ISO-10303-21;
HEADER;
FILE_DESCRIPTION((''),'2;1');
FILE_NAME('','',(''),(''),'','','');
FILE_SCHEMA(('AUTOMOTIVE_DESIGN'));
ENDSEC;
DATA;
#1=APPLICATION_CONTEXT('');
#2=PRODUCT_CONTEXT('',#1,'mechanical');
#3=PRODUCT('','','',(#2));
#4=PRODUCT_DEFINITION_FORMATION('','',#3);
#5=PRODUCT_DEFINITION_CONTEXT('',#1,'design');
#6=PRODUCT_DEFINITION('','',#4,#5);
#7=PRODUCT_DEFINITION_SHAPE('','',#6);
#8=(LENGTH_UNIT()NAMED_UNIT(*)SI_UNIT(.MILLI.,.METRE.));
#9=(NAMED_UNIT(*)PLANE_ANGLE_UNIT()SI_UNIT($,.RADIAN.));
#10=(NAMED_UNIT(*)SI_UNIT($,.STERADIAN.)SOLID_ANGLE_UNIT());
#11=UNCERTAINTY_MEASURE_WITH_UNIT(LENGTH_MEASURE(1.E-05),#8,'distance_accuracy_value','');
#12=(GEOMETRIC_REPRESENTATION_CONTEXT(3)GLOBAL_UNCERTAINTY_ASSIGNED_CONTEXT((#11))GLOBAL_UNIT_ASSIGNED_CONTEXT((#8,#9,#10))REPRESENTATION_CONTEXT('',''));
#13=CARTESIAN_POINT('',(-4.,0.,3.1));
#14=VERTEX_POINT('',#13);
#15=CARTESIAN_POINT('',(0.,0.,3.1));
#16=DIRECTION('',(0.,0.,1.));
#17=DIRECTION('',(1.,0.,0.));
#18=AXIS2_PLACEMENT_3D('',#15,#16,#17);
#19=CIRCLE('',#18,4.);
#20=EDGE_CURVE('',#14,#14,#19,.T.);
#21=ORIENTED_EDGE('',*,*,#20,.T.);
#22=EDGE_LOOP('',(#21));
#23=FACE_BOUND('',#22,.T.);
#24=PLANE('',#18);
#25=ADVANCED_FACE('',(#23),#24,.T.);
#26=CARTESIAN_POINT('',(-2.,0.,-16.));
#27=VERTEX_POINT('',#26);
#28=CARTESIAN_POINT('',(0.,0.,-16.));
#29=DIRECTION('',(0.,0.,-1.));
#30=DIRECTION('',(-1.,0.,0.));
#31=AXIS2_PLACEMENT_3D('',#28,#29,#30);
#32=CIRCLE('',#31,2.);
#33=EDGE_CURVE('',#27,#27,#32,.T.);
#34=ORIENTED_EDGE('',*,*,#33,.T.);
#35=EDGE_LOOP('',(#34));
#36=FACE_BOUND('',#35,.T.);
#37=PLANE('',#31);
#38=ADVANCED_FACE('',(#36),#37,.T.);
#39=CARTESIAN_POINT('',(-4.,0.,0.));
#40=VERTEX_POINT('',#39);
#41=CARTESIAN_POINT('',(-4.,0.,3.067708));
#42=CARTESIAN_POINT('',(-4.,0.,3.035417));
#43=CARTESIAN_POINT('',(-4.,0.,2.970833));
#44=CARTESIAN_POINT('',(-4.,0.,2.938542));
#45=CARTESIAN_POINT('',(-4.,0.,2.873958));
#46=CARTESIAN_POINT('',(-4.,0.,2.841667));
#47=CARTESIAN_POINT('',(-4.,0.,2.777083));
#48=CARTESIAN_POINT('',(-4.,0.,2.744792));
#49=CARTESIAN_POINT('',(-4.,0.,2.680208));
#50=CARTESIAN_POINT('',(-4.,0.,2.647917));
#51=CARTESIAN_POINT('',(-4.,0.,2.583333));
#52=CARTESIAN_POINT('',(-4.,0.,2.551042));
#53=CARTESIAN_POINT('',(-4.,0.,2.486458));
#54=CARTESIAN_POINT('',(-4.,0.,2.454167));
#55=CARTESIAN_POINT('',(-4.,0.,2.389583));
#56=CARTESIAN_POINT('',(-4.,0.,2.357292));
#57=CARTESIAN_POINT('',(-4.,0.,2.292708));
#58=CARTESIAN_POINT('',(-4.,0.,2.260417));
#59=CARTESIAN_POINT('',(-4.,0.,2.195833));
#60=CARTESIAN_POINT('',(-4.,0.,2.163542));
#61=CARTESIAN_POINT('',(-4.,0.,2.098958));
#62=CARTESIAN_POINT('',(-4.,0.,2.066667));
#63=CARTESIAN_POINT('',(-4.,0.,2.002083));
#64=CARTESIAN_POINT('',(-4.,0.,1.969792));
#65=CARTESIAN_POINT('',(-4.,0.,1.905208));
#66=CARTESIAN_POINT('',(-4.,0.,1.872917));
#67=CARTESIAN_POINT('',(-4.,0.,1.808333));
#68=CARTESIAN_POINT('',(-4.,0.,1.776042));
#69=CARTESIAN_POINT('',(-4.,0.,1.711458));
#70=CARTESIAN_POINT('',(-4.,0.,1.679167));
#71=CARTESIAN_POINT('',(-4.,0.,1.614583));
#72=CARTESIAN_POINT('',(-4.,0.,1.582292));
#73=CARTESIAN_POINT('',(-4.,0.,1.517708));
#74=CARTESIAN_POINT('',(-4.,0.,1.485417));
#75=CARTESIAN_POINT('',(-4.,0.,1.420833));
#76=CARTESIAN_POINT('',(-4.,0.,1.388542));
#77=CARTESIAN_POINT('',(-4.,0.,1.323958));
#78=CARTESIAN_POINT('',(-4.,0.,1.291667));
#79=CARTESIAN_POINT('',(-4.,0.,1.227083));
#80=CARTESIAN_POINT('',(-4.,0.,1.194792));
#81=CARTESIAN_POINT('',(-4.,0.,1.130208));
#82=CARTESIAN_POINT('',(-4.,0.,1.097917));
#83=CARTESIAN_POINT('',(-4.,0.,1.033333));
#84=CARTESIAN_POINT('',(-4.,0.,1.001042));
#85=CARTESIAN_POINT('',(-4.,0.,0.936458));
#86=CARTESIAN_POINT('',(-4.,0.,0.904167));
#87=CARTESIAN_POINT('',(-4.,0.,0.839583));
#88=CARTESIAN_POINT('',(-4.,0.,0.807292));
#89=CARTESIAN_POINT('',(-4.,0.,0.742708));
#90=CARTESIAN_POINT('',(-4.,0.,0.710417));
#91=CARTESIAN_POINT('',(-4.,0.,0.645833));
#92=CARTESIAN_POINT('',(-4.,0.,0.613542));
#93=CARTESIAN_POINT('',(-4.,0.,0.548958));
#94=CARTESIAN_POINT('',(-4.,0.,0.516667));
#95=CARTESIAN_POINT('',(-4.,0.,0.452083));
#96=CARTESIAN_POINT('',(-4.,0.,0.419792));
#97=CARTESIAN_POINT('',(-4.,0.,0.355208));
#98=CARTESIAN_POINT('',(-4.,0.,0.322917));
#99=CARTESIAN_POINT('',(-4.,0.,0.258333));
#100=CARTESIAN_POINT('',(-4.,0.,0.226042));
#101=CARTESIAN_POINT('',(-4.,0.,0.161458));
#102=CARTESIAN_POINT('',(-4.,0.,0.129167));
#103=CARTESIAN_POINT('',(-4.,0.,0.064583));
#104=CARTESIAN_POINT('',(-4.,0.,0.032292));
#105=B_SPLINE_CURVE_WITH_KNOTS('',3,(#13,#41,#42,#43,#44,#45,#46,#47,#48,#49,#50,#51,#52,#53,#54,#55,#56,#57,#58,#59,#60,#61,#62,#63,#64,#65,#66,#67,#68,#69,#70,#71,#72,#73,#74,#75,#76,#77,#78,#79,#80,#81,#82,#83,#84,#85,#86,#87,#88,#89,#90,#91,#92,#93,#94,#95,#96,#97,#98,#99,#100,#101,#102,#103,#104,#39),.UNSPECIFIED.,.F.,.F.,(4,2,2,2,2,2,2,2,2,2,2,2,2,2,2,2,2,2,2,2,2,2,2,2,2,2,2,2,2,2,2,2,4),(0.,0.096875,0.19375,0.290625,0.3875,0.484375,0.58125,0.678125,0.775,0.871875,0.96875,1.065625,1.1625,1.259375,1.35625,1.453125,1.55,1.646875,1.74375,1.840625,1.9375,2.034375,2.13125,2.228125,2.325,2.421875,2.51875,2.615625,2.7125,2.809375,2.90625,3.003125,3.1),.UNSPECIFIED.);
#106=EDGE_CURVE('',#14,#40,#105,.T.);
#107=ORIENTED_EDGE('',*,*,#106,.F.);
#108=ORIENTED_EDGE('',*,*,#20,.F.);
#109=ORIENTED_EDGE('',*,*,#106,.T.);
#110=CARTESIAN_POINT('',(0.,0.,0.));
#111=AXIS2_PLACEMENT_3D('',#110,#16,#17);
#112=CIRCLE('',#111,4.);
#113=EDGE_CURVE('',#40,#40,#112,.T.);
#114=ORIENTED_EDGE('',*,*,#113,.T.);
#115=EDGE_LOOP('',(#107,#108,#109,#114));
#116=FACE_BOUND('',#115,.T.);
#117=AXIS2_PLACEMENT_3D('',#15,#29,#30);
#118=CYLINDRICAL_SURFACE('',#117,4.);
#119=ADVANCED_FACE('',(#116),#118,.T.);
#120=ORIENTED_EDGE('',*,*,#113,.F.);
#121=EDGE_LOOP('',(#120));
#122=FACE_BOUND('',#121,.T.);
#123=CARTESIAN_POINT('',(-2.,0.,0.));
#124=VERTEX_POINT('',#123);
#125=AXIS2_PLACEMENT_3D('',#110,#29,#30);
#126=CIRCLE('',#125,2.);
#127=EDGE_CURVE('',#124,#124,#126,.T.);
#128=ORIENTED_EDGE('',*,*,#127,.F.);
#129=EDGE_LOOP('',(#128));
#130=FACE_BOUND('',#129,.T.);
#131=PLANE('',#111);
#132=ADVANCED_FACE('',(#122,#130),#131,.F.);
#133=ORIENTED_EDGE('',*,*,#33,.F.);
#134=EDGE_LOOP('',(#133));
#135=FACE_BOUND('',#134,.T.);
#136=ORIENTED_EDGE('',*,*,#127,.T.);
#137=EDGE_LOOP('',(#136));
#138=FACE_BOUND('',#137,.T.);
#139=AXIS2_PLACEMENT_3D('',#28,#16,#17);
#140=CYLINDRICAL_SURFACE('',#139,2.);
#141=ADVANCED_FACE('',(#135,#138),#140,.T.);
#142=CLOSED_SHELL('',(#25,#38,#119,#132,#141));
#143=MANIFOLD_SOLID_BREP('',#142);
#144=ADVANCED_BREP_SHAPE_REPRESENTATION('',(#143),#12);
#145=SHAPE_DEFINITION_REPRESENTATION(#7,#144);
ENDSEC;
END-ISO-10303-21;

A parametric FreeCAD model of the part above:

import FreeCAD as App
import Part
import Sketcher

doc = App.newDocument("Part")
body = doc.addObject("PartDesign::Body", "Body")

# Sketch on XY plane
sketch1 = doc.addObject("Sketcher::SketchObject", "Sketch")
body.addObject(sketch1)
sketch1.AttachmentSupport = (doc.XY_Plane, [""])
sketch1.MapMode = "FlatFace"
sketch1.addGeometry(Part.Circle(App.Vector(0, 0, 0), App.Vector(0, 0, 1), 4), False)
sketch1.addConstraint(Sketcher.Constraint("Coincident", 0, 3, -1, 1))
sketch1.addConstraint(Sketcher.Constraint("Diameter", 0, 8.0))
pad1 = doc.addObject("PartDesign::Pad", "Pad")
body.addObject(pad1)
pad1.Profile = sketch1
pad1.Length = 3.1

# Sketch on XY plane
sketch2 = doc.addObject("Sketcher::SketchObject", "Sketch001")
body.addObject(sketch2)
sketch2.AttachmentSupport = (doc.XY_Plane, [""])
sketch2.MapMode = "FlatFace"
sketch2.addGeometry(Part.Circle(App.Vector(0, 0, 0), App.Vector(0, 0, 1), 2), False)
sketch2.addConstraint(Sketcher.Constraint("Coincident", 0, 3, -1, 1))
sketch2.addConstraint(Sketcher.Constraint("Diameter", 0, 4.0))
pad2 = doc.addObject("PartDesign::Pad", "Pad001")
body.addObject(pad2)
pad2.Profile = sketch2
pad2.Length = 16
pad2.Reversed = True

doc.recompute()
